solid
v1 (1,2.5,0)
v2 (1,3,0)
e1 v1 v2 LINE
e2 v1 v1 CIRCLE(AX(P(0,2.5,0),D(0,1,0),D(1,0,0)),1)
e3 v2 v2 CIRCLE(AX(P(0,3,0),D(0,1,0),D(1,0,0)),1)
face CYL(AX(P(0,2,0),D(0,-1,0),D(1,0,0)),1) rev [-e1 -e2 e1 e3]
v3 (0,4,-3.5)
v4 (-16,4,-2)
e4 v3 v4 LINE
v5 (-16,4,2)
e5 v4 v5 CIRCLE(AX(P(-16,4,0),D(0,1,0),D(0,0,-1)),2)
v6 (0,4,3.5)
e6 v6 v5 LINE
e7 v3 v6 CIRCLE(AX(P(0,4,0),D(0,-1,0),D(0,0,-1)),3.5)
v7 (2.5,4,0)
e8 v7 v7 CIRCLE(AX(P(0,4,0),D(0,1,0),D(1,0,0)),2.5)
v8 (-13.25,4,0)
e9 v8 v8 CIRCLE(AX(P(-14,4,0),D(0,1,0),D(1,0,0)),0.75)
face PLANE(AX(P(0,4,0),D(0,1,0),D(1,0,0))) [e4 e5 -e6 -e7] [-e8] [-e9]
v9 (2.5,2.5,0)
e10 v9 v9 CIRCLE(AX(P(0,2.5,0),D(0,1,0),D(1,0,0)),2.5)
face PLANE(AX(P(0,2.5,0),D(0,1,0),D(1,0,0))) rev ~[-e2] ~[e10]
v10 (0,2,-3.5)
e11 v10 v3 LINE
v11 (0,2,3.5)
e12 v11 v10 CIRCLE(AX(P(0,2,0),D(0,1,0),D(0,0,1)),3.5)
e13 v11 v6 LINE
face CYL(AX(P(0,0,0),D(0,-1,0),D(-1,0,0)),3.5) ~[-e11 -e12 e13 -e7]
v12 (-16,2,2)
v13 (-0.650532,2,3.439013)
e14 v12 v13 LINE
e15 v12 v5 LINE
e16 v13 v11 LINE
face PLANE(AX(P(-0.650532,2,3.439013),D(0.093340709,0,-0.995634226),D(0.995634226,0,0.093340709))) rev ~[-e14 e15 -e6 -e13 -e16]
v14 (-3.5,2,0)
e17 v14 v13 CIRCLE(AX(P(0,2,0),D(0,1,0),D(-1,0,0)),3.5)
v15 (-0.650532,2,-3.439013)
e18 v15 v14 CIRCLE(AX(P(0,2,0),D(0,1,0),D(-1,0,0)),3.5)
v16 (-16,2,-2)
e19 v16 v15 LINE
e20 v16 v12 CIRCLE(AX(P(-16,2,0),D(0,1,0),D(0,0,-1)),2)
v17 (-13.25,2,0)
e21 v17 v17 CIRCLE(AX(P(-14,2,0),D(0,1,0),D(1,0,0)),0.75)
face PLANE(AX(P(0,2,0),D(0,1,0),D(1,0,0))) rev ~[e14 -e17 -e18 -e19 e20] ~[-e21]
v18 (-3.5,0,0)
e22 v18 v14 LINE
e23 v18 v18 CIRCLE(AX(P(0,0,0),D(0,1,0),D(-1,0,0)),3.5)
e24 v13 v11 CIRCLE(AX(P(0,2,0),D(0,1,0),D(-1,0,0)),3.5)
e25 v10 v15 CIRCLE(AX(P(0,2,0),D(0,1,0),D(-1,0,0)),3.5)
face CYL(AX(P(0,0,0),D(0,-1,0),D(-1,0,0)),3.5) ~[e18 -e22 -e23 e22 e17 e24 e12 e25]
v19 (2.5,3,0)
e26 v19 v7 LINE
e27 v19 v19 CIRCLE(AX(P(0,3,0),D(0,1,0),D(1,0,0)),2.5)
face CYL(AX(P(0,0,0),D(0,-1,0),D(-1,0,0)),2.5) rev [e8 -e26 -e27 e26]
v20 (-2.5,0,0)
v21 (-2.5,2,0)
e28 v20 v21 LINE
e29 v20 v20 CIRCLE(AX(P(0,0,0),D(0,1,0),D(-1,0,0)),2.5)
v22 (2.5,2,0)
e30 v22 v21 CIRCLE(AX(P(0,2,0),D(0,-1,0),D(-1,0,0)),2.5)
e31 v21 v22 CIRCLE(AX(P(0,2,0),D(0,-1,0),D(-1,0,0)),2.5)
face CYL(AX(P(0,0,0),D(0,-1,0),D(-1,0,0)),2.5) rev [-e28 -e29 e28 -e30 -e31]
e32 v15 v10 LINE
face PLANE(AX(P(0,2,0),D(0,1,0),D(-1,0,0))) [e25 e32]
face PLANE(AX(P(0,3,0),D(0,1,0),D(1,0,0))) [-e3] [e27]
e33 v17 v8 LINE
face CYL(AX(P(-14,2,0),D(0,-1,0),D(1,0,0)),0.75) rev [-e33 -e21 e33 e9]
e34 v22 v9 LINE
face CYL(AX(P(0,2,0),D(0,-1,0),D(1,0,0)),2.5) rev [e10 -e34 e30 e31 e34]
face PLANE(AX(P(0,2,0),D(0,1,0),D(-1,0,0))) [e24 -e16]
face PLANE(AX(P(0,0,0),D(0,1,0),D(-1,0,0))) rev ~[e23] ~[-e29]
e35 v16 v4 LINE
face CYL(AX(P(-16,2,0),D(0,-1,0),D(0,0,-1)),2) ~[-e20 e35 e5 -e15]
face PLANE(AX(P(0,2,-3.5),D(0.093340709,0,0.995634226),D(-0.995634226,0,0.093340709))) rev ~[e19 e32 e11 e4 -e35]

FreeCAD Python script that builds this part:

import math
import FreeCAD as App
import Part
import Sketcher

doc = App.newDocument("Part")
body = doc.addObject("PartDesign::Body", "Body")

# Sketch on XZ plane
sketch1 = body.newObject("Sketcher::SketchObject", "Sketch")
sketch1.AttachmentSupport = (doc.getObject("XZ_Plane"), [""])
sketch1.MapMode = "FlatFace"
sketch1.addGeometry([
    Part.Circle(App.Vector(0, 0, 0), App.Vector(0, 0, 1), 3.5),
    Part.Circle(App.Vector(0, 0, 0), App.Vector(0, 0, 1), 2.5),
], False)
sketch1.addConstraint([
    Sketcher.Constraint("Coincident", 0, 3, -1, 1),
    Sketcher.Constraint("Coincident", 1, 3, -1, 1),
    Sketcher.Constraint("Diameter", 0, 7.0),
    Sketcher.Constraint("Diameter", 1, 5.0),
])
pad1 = body.newObject("PartDesign::Pad", "Pad")
pad1.Profile = sketch1
pad1.Length = 2
pad1.Reversed = True

# Sketch on XZ plane
sketch2 = body.newObject("Sketcher::SketchObject", "Sketch001")
sketch2.AttachmentSupport = (doc.getObject("XZ_Plane"), [""])
sketch2.MapMode = "FlatFace"
sketch2.AttachmentOffset = App.Placement(App.Vector(0, 0, -2), App.Rotation())
sketch2.addGeometry([
    Part.ArcOfCircle(Part.Circle(App.Vector(0, 0, 0), App.Vector(0, 0, 1), 3.5), math.radians(-90), math.radians(90)),  # 0
    Part.LineSegment(App.Vector(0, -3.5, 0), App.Vector(-16, -2, 0)),  # 1
    Part.ArcOfCircle(Part.Circle(App.Vector(-16, 0, 0), App.Vector(0, 0, 1), 2), math.radians(90), math.radians(270)),  # 2
    Part.LineSegment(App.Vector(-16, 2, 0), App.Vector(0, 3.5, 0)),  # 3
    Part.Circle(App.Vector(0, 0, 0), App.Vector(0, 0, 1), 2.5),  # 4
    Part.Circle(App.Vector(-14, 0, 0), App.Vector(0, 0, 1), 0.75),  # 5
], False)
sketch2.addConstraint([
    Sketcher.Constraint("Coincident", 0, 1, 1, 1),
    Sketcher.Constraint("Coincident", 1, 2, 2, 2),
    Sketcher.Constraint("Coincident", 2, 1, 3, 1),
    Sketcher.Constraint("Coincident", 3, 2, 0, 2),
    Sketcher.Constraint("Coincident", 0, 3, -1, 1),
    Sketcher.Constraint("Coincident", 4, 3, -1, 1),
    Sketcher.Constraint("Symmetric", 1, 2, 2, 1, -1),
    Sketcher.Constraint("PointOnObject", 5, 3, -1),
    Sketcher.Constraint("PointOnObject", 0, 1, -2),
    Sketcher.Constraint("PointOnObject", 3, 2, -2),
    Sketcher.Constraint("Vertical", 2, 3, 1, 2),
    Sketcher.Constraint("Radius", 2, 2.0),
    Sketcher.Constraint("Diameter", 5, 1.5),
    Sketcher.Constraint("Diameter", 4, 5.0),
    Sketcher.Constraint("DistanceX", 2, 3, -1, 1, 16.0),
    Sketcher.Constraint("DistanceX", 2, 3, 5, 3, 2.0),
    Sketcher.Constraint("Radius", 0, 3.5),
])
pad2 = body.newObject("PartDesign::Pad", "Pad001")
pad2.Profile = sketch2
pad2.Length = 2
pad2.Reversed = True

# Sketch on XZ plane
sketch3 = body.newObject("Sketcher::SketchObject", "Sketch002")
sketch3.AttachmentSupport = (doc.getObject("XZ_Plane"), [""])
sketch3.MapMode = "FlatFace"
sketch3.AttachmentOffset = App.Placement(App.Vector(0, 0, -2), App.Rotation())
sketch3.addGeometry([
    Part.Circle(App.Vector(0, 0, 0), App.Vector(0, 0, 1), 2.5),
    Part.Circle(App.Vector(0, 0, 0), App.Vector(0, 0, 1), 1),
], False)
sketch3.addConstraint([
    Sketcher.Constraint("Coincident", 0, 3, -1, 1),
    Sketcher.Constraint("Coincident", 1, 3, -1, 1),
    Sketcher.Constraint("Diameter", 1, 2.0),
    Sketcher.Constraint("Diameter", 0, 5.0),
])
pad3 = body.newObject("PartDesign::Pad", "Pad002")
pad3.Profile = sketch3
pad3.Length = 1
pad3.Reversed = True

# Sketch on XZ plane
sketch4 = body.newObject("Sketcher::SketchObject", "Sketch003")
sketch4.AttachmentSupport = (doc.getObject("XZ_Plane"), [""])
sketch4.MapMode = "FlatFace"
sketch4.AttachmentOffset = App.Placement(App.Vector(0, 0, -2), App.Rotation())
sketch4.addGeometry([
    Part.Circle(App.Vector(0, 0, 0), App.Vector(0, 0, 1), 2.5),
    Part.Circle(App.Vector(0, 0, 0), App.Vector(0, 0, 1), 1),
], False)
sketch4.addConstraint([
    Sketcher.Constraint("Coincident", 0, 3, -1, 1),
    Sketcher.Constraint("Coincident", 1, 3, -1, 1),
    Sketcher.Constraint("Diameter", 1, 2.0),
    Sketcher.Constraint("Diameter", 0, 5.0),
])
pocket1 = body.newObject("PartDesign::Pocket", "Pocket")
pocket1.Profile = sketch4
pocket1.Length = 0.5

doc.recompute()
